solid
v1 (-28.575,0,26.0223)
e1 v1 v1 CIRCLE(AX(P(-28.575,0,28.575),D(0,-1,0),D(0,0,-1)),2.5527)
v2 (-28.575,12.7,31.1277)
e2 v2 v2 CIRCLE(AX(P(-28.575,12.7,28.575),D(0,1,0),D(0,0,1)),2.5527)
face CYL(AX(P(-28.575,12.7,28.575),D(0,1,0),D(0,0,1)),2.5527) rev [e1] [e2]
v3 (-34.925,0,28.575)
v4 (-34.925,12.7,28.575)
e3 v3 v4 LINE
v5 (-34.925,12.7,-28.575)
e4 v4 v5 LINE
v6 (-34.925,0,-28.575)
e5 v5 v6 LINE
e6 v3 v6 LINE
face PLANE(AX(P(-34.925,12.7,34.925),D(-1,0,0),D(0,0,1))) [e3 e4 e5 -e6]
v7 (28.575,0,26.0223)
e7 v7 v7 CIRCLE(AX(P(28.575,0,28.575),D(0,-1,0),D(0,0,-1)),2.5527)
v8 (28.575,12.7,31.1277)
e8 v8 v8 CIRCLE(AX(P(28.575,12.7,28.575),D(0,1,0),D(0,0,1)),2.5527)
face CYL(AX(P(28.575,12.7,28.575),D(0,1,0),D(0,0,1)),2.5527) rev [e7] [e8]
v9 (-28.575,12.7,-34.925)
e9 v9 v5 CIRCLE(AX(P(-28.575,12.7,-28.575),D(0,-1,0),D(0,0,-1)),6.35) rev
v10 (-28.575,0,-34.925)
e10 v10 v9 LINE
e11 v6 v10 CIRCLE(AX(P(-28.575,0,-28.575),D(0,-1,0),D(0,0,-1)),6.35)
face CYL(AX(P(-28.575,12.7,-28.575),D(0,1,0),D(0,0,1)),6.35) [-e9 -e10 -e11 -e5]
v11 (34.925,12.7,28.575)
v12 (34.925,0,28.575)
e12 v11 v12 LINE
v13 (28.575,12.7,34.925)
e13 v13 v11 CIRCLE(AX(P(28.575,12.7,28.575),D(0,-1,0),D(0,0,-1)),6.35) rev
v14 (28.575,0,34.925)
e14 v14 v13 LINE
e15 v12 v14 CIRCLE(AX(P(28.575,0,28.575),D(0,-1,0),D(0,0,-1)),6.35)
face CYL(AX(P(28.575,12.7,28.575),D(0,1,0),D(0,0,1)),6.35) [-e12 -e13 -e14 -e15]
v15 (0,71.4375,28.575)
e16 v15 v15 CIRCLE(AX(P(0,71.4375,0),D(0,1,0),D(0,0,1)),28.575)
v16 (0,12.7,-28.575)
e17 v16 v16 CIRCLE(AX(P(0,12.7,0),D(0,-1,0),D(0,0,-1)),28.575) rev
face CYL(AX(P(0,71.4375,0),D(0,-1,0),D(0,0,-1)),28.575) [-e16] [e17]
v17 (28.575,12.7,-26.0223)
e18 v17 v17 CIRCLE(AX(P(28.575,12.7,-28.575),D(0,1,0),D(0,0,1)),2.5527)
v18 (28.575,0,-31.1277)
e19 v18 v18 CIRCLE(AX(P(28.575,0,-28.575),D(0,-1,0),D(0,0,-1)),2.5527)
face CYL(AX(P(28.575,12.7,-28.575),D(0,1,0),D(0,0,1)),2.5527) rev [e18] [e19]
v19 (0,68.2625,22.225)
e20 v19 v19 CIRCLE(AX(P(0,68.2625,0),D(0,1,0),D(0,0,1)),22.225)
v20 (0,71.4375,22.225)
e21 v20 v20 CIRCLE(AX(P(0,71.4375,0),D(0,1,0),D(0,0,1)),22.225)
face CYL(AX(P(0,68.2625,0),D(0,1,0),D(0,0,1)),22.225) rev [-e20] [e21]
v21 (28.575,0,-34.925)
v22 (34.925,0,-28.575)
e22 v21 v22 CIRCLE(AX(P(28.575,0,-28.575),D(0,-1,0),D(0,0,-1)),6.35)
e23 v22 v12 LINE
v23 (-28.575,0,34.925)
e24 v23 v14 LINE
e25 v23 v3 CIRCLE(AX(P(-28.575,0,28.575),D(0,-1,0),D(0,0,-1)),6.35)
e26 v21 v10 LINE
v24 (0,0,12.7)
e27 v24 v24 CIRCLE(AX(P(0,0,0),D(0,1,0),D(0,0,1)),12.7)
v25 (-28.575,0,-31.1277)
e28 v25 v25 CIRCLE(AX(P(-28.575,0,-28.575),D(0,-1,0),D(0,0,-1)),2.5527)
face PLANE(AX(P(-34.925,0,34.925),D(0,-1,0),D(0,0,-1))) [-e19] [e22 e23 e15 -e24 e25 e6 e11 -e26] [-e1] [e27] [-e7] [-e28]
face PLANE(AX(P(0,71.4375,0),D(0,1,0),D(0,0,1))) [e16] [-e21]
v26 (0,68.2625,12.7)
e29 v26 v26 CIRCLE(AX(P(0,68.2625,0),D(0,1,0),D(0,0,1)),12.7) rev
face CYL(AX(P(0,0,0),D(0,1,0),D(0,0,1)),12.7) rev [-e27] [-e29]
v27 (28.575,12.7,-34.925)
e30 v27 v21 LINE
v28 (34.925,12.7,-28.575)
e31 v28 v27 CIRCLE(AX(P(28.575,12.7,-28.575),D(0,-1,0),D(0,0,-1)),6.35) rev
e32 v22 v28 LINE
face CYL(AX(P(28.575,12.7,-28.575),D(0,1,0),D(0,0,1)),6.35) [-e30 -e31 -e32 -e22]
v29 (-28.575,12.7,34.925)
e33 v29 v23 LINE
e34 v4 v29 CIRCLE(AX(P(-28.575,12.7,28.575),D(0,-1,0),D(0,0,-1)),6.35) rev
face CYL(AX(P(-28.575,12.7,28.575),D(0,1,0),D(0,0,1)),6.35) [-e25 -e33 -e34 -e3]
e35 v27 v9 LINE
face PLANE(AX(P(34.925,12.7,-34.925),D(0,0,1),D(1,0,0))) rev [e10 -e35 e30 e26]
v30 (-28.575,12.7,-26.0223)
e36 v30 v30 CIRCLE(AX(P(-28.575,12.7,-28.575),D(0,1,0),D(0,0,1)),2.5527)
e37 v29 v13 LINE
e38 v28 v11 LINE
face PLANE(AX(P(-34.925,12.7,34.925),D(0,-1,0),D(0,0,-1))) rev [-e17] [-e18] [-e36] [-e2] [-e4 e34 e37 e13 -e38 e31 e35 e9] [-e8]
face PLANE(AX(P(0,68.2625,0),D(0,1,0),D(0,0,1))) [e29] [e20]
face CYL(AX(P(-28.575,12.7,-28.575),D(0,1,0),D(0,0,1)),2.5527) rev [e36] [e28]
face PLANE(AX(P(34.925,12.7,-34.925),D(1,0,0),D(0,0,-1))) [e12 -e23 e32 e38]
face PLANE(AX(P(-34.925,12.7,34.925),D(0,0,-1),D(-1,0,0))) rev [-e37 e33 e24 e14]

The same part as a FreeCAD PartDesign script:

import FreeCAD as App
import Part
import Sketcher
Q = App.Units.Quantity


def edges_at(feature, points):
    """Names of the edges that pass closest to the given points."""
    edges = feature.Shape.Edges
    near = lambda p: min(range(len(edges)), key=lambda i: edges[i].distToShape(Part.Vertex(*p))[0])
    return sorted({f"Edge{near(p) + 1}" for p in points})

doc = App.newDocument("Part")
body = doc.addObject("PartDesign::Body", "Body")

# Sketch on XZ plane
sketch1 = doc.addObject("Sketcher::SketchObject", "Sketch")
body.addObject(sketch1)
sketch1.AttachmentSupport = (doc.XZ_Plane, [""])
sketch1.MapMode = "FlatFace"
sketch1.addGeometry(Part.LineSegment(App.Vector(-35, -35, 0), App.Vector(-35, 35, 0)), False)
sketch1.addGeometry(Part.LineSegment(App.Vector(-35, 35, 0), App.Vector(35, 35, 0)), False)
sketch1.addGeometry(Part.LineSegment(App.Vector(35, 35, 0), App.Vector(35, -35, 0)), False)
sketch1.addGeometry(Part.LineSegment(App.Vector(35, -35, 0), App.Vector(-35, -35, 0)), False)
sketch1.addConstraint(Sketcher.Constraint("Coincident", 0, 2, 1, 1))
sketch1.addConstraint(Sketcher.Constraint("Coincident", 1, 2, 2, 1))
sketch1.addConstraint(Sketcher.Constraint("Coincident", 2, 2, 3, 1))
sketch1.addConstraint(Sketcher.Constraint("Coincident", 3, 2, 0, 1))
sketch1.addConstraint(Sketcher.Constraint("Vertical", 0))
sketch1.addConstraint(Sketcher.Constraint("Horizontal", 1))
sketch1.addConstraint(Sketcher.Constraint("Vertical", 2))
sketch1.addConstraint(Sketcher.Constraint("Horizontal", 3))
sketch1.addConstraint(Sketcher.Constraint("Symmetric", 0, 2, 2, 2, -1, 1))
sketch1.addConstraint(Sketcher.Constraint("Equal", 3, 0))
sketch1.addConstraint(Sketcher.Constraint("DistanceX", 1, 1, 1, 2, Q("2.75 in")))
pad1 = doc.addObject("PartDesign::Pad", "Pad")
body.addObject(pad1)
pad1.Profile = sketch1
pad1.Length = Q("0.5 in")
pad1.Reversed = True

# Sketch on XZ plane
sketch2 = doc.addObject("Sketcher::SketchObject", "Sketch001")
body.addObject(sketch2)
sketch2.AttachmentSupport = (doc.XZ_Plane, [""])
sketch2.MapMode = "FlatFace"
sketch2.addGeometry(Part.Circle(App.Vector(0, 0, 0), App.Vector(0, 0, 1), 29), False)
sketch2.addConstraint(Sketcher.Constraint("Coincident", 0, 3, -1, 1))
sketch2.addConstraint(Sketcher.Constraint("Diameter", 0, Q("2.25 in")))
pad2 = doc.addObject("PartDesign::Pad", "Pad001")
body.addObject(pad2)
pad2.Profile = sketch2
pad2.Length = Q("2.8125 in")
pad2.Reversed = True

# Sketch on XZ plane
sketch3 = doc.addObject("Sketcher::SketchObject", "Sketch002")
body.addObject(sketch3)
sketch3.AttachmentSupport = (doc.XZ_Plane, [""])
sketch3.MapMode = "FlatFace"
sketch3.AttachmentOffset = App.Placement(App.Vector(0, 0, -2.8125 * 25.4), App.Rotation())
sketch3.addGeometry(Part.Circle(App.Vector(0, 0, 0), App.Vector(0, 0, 1), 13), False)
sketch3.addConstraint(Sketcher.Constraint("Coincident", 0, 3, -1, 1))
sketch3.addConstraint(Sketcher.Constraint("Diameter", 0, Q("1 in")))
pocket1 = doc.addObject("PartDesign::Pocket", "Pocket")
body.addObject(pocket1)
pocket1.Profile = sketch3
pocket1.Type = "ThroughAll"
pocket1.Reversed = True

# Sketch on XZ plane
sketch4 = doc.addObject("Sketcher::SketchObject", "Sketch003")
body.addObject(sketch4)
sketch4.AttachmentSupport = (doc.XZ_Plane, [""])
sketch4.MapMode = "FlatFace"
sketch4.AttachmentOffset = App.Placement(App.Vector(0, 0, -2.8125 * 25.4), App.Rotation())
sketch4.addGeometry(Part.Circle(App.Vector(0, 0, 0), App.Vector(0, 0, 1), 22), False)
sketch4.addConstraint(Sketcher.Constraint("Coincident", 0, 3, -1, 1))
sketch4.addConstraint(Sketcher.Constraint("Diameter", 0, Q("1.75 in")))
pocket2 = doc.addObject("PartDesign::Pocket", "Pocket001")
body.addObject(pocket2)
pocket2.Profile = sketch4
pocket2.Length = Q("0.125 in")
pocket2.Reversed = True
doc.recompute()

fillet = doc.addObject("PartDesign::Fillet", "Fillet")
body.addObject(fillet)
fillet.Base = (pocket2, edges_at(pocket2, [
    (-34.925, 6.35, 34.925),
    (34.925, 6.35, 34.925),
    (34.925, 6.35, -34.925),
    (-34.925, 6.35, -34.925),
]))
fillet.Radius = Q("0.25 in")

# Sketch on YZ plane
sketch5 = doc.addObject("Sketcher::SketchObject", "Sketch004")
body.addObject(sketch5)
sketch5.AttachmentSupport = (doc.YZ_Plane, [""])
sketch5.MapMode = "FlatFace"
sketch5.AttachmentOffset = App.Placement(App.Vector(0, 0, -1.125 * 25.4), App.Rotation())
sketch5.addGeometry(Part.LineSegment(App.Vector(-7.9, -28.6, 0), App.Vector(12.7, -28.6, 0)), False)
sketch5.addGeometry(Part.LineSegment(App.Vector(12.7, -28.6, 0), App.Vector(12.7, -26, 0)), False)
sketch5.addGeometry(Part.LineSegment(App.Vector(12.7, -26, 0), App.Vector(-6.3, -26, 0)), False)
sketch5.addGeometry(Part.LineSegment(App.Vector(-6.3, -26, 0), App.Vector(-7.9, -28.6, 0)), False)
sketch5.addGeometry(Part.LineSegment(App.Vector(12.7, -28.6, 0), App.Vector(-7.9, -28.6, 0)), True)  # axis
sketch5.addConstraint(Sketcher.Constraint("Coincident", 0, 2, 1, 1))
sketch5.addConstraint(Sketcher.Constraint("Coincident", 1, 2, 2, 1))
sketch5.addConstraint(Sketcher.Constraint("Coincident", 2, 2, 3, 1))
sketch5.addConstraint(Sketcher.Constraint("Coincident", 3, 2, 0, 1))
sketch5.addConstraint(Sketcher.Constraint("Horizontal", 0))
sketch5.addConstraint(Sketcher.Constraint("Vertical", 1))
sketch5.addConstraint(Sketcher.Constraint("Horizontal", 2))
sketch5.addConstraint(Sketcher.Constraint("Horizontal", 4))
sketch5.addConstraint(Sketcher.Constraint("Coincident", 4, 1, 0, 2))
sketch5.addConstraint(Sketcher.Constraint("Equal", 0, 4))
sketch5.addConstraint(Sketcher.Constraint("Angle", 3, Q("-121 deg")))
sketch5.addConstraint(Sketcher.Constraint("DistanceX", 2, 2, 2, 1, Q("0.75 in")))
sketch5.addConstraint(Sketcher.Constraint("DistanceX", -1, 1, 0, 2, Q("0.5 in")))
sketch5.addConstraint(Sketcher.Constraint("DistanceY", 1, 1, 1, 2, Q("0.1005 in")))
sketch5.addConstraint(Sketcher.Constraint("DistanceY", 0, 2, -1, 1, Q("1.125 in")))
groove = doc.addObject("PartDesign::Groove", "Groove")
body.addObject(groove)
groove.Profile = sketch5
groove.ReferenceAxis = (sketch5, ["Axis0"])
groove.Angle = 360
doc.recompute()

polarpattern = doc.addObject("PartDesign::PolarPattern", "PolarPattern")
body.addObject(polarpattern)
polarpattern.Originals = [groove]
polarpattern.Axis = (doc.Y_Axis, [""])
polarpattern.Angle = 360
polarpattern.Occurrences = 4
body.Tip = polarpattern

doc.recompute()
